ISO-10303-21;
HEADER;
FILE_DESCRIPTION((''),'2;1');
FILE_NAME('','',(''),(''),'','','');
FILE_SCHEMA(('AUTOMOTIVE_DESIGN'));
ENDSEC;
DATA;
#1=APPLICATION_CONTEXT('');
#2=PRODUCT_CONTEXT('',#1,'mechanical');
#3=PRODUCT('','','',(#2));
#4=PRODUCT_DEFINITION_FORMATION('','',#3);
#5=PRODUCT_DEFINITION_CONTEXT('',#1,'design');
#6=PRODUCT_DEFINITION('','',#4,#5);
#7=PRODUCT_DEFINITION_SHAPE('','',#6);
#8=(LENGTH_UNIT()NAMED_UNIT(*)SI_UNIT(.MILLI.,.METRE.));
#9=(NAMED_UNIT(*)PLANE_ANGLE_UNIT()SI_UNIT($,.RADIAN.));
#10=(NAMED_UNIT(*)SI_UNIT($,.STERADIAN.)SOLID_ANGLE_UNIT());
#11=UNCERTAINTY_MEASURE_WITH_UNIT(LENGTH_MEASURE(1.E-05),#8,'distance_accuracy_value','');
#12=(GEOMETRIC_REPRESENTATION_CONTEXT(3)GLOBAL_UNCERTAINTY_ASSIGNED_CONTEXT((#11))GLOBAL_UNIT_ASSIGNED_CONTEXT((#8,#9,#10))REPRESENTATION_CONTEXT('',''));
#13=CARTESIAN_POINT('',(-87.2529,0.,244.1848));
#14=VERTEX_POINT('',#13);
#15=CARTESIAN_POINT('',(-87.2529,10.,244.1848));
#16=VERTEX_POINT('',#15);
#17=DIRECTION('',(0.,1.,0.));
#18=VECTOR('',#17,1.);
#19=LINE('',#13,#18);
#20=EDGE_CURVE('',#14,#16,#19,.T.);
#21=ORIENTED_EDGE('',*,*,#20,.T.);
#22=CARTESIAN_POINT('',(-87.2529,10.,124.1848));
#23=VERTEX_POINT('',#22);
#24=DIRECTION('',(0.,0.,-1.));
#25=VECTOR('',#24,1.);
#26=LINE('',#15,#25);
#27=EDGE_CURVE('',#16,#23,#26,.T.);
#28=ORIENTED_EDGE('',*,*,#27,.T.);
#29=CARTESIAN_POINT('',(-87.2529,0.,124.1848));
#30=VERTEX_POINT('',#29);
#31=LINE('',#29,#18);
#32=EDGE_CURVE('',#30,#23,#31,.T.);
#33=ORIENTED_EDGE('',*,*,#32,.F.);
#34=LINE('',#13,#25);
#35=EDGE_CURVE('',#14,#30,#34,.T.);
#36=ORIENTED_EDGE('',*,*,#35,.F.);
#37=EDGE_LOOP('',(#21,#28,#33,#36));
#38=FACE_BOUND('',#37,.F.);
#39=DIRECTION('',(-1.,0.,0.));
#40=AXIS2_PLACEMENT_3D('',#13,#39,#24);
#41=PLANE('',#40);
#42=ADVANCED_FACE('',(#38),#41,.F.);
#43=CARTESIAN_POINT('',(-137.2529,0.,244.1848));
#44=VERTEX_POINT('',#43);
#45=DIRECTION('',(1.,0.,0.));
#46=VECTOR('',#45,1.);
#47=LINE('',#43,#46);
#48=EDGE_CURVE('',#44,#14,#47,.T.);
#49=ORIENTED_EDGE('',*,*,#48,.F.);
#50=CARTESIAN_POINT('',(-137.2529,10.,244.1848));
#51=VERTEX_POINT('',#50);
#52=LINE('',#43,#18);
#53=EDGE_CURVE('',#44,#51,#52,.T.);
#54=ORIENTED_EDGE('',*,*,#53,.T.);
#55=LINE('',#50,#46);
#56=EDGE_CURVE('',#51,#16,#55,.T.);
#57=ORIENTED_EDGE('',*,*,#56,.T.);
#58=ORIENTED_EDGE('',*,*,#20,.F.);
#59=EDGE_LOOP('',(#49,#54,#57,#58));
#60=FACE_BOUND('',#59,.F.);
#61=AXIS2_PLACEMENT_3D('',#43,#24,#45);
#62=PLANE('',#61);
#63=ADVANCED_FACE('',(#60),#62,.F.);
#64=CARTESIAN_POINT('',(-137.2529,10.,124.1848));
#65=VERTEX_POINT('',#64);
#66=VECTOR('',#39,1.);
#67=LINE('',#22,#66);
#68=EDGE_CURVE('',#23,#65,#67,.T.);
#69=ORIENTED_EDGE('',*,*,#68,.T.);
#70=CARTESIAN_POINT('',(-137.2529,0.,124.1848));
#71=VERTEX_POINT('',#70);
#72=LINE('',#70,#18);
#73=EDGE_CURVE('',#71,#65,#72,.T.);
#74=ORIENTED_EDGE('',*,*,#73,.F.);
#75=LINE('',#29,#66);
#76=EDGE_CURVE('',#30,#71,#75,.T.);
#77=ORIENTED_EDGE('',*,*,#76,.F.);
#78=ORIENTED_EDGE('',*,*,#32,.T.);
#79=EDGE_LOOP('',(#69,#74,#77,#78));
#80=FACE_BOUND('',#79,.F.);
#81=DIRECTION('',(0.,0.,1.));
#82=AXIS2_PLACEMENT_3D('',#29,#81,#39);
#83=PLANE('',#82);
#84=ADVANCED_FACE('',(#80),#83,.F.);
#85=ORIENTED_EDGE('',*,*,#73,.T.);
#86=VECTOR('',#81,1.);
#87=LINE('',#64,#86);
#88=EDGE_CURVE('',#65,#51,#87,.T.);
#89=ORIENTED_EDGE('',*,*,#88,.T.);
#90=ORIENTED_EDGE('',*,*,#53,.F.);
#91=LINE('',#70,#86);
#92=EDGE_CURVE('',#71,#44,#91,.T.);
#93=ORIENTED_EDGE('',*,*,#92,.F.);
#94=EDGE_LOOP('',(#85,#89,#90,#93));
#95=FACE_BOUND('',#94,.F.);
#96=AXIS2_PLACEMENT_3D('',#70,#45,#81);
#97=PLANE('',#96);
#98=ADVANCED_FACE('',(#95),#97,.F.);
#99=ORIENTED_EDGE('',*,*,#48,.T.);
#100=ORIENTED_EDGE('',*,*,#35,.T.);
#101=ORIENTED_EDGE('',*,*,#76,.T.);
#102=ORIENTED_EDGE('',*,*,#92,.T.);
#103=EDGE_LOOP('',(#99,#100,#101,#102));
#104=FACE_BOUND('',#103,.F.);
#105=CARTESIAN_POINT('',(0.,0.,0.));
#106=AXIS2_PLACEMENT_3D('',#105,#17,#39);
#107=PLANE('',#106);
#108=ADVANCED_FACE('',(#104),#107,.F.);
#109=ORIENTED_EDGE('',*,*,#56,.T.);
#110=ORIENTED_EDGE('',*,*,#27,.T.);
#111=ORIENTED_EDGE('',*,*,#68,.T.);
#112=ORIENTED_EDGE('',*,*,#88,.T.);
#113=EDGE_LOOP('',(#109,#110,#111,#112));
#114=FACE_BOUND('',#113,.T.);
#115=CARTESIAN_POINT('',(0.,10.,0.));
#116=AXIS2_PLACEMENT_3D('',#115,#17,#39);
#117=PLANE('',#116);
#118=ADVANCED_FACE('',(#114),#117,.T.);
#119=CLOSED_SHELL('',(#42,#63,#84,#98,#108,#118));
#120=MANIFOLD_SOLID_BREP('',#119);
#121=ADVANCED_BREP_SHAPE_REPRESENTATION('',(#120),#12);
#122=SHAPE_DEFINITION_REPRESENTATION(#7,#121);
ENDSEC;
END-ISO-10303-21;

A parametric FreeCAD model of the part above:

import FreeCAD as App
import Part
import Sketcher
from FreeCAD import Vector

doc = App.newDocument("Part")
params = doc.addObject("Spreadsheet::Sheet", "Params")
for row, (alias, value) in enumerate([
    ("sketch1_width", "50 mm"),
    ("sketch1_height", "120 mm"),
    ("pad1_length", "10 mm"),
], start=1):
    params.set(f"A{row}", alias)
    params.set(f"B{row}", "=" + value)
    params.setAlias(f"B{row}", alias)

body = doc.addObject("PartDesign::Body", "Body")

# Sketch on XZ plane
sketch1 = body.newObject("Sketcher::SketchObject", "Sketch")
sketch1.AttachmentSupport = (doc.getObject("XZ_Plane"), [""])
sketch1.MapMode = "FlatFace"
sketch1.addGeometry(Part.LineSegment(Vector(-137.2529, 124.1848, 0), Vector(-137.2529, 244.1848, 0)), False)
sketch1.addGeometry(Part.LineSegment(Vector(-137.2529, 244.1848, 0), Vector(-87.2529, 244.1848, 0)), False)
sketch1.addGeometry(Part.LineSegment(Vector(-87.2529, 244.1848, 0), Vector(-87.2529, 124.1848, 0)), False)
sketch1.addGeometry(Part.LineSegment(Vector(-87.2529, 124.1848, 0), Vector(-137.2529, 124.1848, 0)), False)
sketch1.addConstraint(Sketcher.Constraint("Coincident", 0, 2, 1, 1))
sketch1.addConstraint(Sketcher.Constraint("Coincident", 1, 2, 2, 1))
sketch1.addConstraint(Sketcher.Constraint("Coincident", 2, 2, 3, 1))
sketch1.addConstraint(Sketcher.Constraint("Coincident", 3, 2, 0, 1))
sketch1.addConstraint(Sketcher.Constraint("Vertical", 0))
sketch1.addConstraint(Sketcher.Constraint("Horizontal", 1))
sketch1.addConstraint(Sketcher.Constraint("Vertical", 2))
sketch1.addConstraint(Sketcher.Constraint("Horizontal", 3))
sketch1.addConstraint(Sketcher.Constraint("DistanceX", 1, 1, 1, 2, 50.0))
sketch1.addConstraint(Sketcher.Constraint("DistanceY", 0, 1, 0, 2, 120.0))
sketch1.addConstraint(Sketcher.Constraint("DistanceX", 0, 2, -1, 1, 137.253))
sketch1.addConstraint(Sketcher.Constraint("DistanceY", -1, 1, 0, 2, 244.1848))
sketch1.setExpression("Constraints[8]", "Params.sketch1_width")
sketch1.setExpression("Constraints[9]", "Params.sketch1_height")
pad1 = body.newObject("PartDesign::Pad", "Pad")
pad1.Profile = sketch1
pad1.setExpression("Length", "Params.pad1_length")
pad1.Reversed = True

doc.recompute()
